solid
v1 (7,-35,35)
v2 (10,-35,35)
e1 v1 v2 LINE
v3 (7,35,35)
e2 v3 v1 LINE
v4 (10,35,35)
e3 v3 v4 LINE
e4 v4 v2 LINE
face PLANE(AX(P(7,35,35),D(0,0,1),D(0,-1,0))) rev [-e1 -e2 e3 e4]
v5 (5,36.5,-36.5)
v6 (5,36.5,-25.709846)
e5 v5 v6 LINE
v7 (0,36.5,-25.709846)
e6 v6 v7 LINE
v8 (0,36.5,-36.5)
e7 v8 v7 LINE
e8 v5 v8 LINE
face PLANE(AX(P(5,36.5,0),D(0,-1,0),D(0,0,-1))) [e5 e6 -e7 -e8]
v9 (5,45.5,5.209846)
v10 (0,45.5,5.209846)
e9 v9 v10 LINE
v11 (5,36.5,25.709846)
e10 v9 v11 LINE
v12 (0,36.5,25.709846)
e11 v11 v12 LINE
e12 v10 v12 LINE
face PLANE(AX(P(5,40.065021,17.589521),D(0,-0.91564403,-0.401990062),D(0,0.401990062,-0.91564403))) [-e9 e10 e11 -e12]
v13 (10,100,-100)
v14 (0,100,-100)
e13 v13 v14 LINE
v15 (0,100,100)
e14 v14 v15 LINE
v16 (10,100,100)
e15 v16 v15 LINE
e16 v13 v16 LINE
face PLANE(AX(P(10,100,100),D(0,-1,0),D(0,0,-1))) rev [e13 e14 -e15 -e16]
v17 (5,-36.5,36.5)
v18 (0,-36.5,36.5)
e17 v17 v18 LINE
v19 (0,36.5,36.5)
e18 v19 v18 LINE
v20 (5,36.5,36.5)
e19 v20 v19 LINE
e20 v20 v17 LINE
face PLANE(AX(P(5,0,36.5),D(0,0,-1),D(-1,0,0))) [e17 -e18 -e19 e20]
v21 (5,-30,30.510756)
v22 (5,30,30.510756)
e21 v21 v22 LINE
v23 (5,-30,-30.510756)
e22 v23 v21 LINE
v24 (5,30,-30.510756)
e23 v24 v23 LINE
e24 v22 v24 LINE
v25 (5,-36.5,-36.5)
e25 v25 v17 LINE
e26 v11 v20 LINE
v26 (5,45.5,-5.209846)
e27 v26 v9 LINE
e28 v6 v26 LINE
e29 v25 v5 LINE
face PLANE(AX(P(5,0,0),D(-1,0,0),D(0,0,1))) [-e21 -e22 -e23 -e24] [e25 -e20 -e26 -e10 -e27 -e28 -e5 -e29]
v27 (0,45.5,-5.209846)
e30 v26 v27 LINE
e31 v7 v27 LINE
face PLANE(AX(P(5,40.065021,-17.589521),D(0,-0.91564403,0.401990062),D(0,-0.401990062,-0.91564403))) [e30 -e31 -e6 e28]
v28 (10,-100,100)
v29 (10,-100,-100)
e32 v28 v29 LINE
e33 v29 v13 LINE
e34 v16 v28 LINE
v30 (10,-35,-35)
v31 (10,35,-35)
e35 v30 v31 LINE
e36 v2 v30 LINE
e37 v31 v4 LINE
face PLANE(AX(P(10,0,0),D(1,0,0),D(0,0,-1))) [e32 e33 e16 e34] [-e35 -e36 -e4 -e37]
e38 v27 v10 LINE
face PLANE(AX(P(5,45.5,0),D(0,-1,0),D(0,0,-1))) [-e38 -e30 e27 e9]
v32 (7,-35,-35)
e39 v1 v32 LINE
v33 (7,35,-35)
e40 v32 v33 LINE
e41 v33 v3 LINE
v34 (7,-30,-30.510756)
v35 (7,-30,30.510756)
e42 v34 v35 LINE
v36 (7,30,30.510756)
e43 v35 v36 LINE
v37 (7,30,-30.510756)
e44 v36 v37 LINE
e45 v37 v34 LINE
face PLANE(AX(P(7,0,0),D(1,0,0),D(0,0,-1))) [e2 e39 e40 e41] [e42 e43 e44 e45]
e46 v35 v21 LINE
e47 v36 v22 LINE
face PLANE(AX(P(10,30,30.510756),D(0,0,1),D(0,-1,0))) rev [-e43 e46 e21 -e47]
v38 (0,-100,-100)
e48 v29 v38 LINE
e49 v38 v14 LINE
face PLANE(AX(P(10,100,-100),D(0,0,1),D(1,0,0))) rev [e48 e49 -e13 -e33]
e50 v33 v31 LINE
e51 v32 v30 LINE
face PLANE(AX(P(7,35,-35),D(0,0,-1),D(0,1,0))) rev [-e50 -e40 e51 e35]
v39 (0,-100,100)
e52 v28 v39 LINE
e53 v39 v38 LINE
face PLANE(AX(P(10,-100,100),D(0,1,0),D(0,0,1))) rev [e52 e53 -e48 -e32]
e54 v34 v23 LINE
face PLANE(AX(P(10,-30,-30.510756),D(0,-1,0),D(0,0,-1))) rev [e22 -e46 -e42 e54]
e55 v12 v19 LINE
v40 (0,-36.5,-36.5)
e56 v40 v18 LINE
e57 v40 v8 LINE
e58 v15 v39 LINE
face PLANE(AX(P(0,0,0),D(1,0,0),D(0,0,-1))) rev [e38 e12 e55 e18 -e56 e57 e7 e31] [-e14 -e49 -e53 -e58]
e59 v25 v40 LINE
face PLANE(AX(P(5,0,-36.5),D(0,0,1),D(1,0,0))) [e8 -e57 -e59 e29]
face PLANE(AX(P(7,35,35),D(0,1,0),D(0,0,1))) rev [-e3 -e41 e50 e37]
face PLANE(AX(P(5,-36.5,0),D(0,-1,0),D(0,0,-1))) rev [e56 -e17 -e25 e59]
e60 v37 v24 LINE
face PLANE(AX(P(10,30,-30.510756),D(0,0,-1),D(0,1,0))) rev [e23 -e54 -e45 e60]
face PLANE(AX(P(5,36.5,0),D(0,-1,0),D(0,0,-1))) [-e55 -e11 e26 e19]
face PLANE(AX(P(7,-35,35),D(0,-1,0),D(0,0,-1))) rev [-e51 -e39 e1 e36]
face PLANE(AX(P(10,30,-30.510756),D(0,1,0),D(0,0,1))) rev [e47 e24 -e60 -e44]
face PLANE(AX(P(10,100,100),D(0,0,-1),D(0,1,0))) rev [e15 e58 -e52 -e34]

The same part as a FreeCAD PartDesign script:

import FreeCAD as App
import Part
import Sketcher
from FreeCAD import Vector


def add_polygon(sketch, points):
    """Adds a closed chain of lines whose ends are joined by coincident constraints."""
    first, n = sketch.GeometryCount, len(points)
    for a, b in zip(points, points[1:] + points[:1]):
        sketch.addGeometry(Part.LineSegment(App.Vector(*a, 0), App.Vector(*b, 0)), False)
    for i in range(n):
        sketch.addConstraint(Sketcher.Constraint("Coincident", first + i, 2, first + (i + 1) % n, 1))

doc = App.newDocument("Part")
body = doc.addObject("PartDesign::Body", "Body")

# Sketch on YZ plane
sketch1 = body.newObject("Sketcher::SketchObject", "Sketch")
sketch1.AttachmentSupport = (doc.getObject("YZ_Plane"), [""])
sketch1.MapMode = "FlatFace"
add_polygon(sketch1, [(100, 100), (-100, 100), (-100, -100), (100, -100)])  # lines 0-3
sketch1.addConstraint([
    Sketcher.Constraint("Horizontal", 0),
    Sketcher.Constraint("Vertical", 1),
    Sketcher.Constraint("Horizontal", 2),
    Sketcher.Constraint("Vertical", 3),
    Sketcher.Constraint("Symmetric", 0, 2, 2, 2, -1, 1),
    Sketcher.Constraint("Equal", 2, 1),
    Sketcher.Constraint("DistanceX", 0, 2, 0, 1, 200.0),
])
pad1 = body.newObject("PartDesign::Pad", "Pad")
pad1.Profile = sketch1
pad1.Length = 10

# Sketch on YZ plane
sketch2 = body.newObject("Sketcher::SketchObject", "Sketch001")
sketch2.AttachmentSupport = (doc.getObject("YZ_Plane"), [""])
sketch2.MapMode = "FlatFace"
add_polygon(sketch2, [(-36.5, 36.5), (36.5, 36.5), (36.5, 25.709846), (45.5, 5.209846), (45.5, -5.209846), (36.5, -25.709846), (36.5, -36.5), (-36.5, -36.5)])  # lines 0-7
sketch2.addConstraint([
    Sketcher.Constraint("Horizontal", 0),
    Sketcher.Constraint("Vertical", 1),
    Sketcher.Constraint("Vertical", 3),
    Sketcher.Constraint("Vertical", 5),
    Sketcher.Constraint("Horizontal", 6),
    Sketcher.Constraint("Vertical", 7),
    Sketcher.Constraint("Symmetric", 0, 2, 6, 2, -1, 1),
    Sketcher.Constraint("Symmetric", 1, 2, 4, 2, -1),
    Sketcher.Constraint("Equal", 6, 7),
    Sketcher.Constraint("Equal", 2, 4),
    Sketcher.Constraint("DistanceX", 0, 1, 0, 2, 73.0),
    Sketcher.Constraint("DistanceX", 1, 2, 2, 2, 9.0),
    Sketcher.Constraint("DistanceY", 2, 2, 1, 2, 20.5),
    Sketcher.Constraint("DistanceY", 3, 2, 3, 1, 10.419692),
])
pocket1 = body.newObject("PartDesign::Pocket", "Pocket")
pocket1.Profile = sketch2
pocket1.Length = 5
pocket1.Reversed = True

# Sketch on YZ plane
sketch3 = body.newObject("Sketcher::SketchObject", "Sketch002")
sketch3.AttachmentSupport = (doc.getObject("YZ_Plane"), [""])
sketch3.MapMode = "FlatFace"
sketch3.AttachmentOffset = App.Placement(Vector(0, 0, 5), App.Rotation())
add_polygon(sketch3, [(30, -30.510756), (-30, -30.510756), (-30, 30.510756), (30, 30.510756)])  # lines 0-3
sketch3.addConstraint([
    Sketcher.Constraint("Horizontal", 0),
    Sketcher.Constraint("Vertical", 1),
    Sketcher.Constraint("Horizontal", 2),
    Sketcher.Constraint("Vertical", 3),
    Sketcher.Constraint("Symmetric", 0, 2, 2, 2, -1, 1),
    Sketcher.Constraint("DistanceX", 0, 2, 0, 1, 60.0),
    Sketcher.Constraint("DistanceY", 1, 1, 1, 2, 61.021512),
])
pocket2 = body.newObject("PartDesign::Pocket", "Pocket001")
pocket2.Profile = sketch3
pocket2.Type = "ThroughAll"
pocket2.Reversed = True

# Sketch on YZ plane
sketch4 = body.newObject("Sketcher::SketchObject", "Sketch003")
sketch4.AttachmentSupport = (doc.getObject("YZ_Plane"), [""])
sketch4.MapMode = "FlatFace"
sketch4.AttachmentOffset = App.Placement(Vector(0, 0, 10), App.Rotation())
add_polygon(sketch4, [(35, 35), (-35, 35), (-35, -35), (35, -35)])  # lines 0-3
sketch4.addConstraint([
    Sketcher.Constraint("Horizontal", 0),
    Sketcher.Constraint("Vertical", 1),
    Sketcher.Constraint("Horizontal", 2),
    Sketcher.Constraint("Vertical", 3),
    Sketcher.Constraint("Symmetric", 0, 2, 2, 2, -1, 1),
    Sketcher.Constraint("Equal", 2, 1),
    Sketcher.Constraint("DistanceX", 0, 2, 0, 1, 70.0),
])
pocket3 = body.newObject("PartDesign::Pocket", "Pocket002")
pocket3.Profile = sketch4
pocket3.Length = 3

doc.recompute()
